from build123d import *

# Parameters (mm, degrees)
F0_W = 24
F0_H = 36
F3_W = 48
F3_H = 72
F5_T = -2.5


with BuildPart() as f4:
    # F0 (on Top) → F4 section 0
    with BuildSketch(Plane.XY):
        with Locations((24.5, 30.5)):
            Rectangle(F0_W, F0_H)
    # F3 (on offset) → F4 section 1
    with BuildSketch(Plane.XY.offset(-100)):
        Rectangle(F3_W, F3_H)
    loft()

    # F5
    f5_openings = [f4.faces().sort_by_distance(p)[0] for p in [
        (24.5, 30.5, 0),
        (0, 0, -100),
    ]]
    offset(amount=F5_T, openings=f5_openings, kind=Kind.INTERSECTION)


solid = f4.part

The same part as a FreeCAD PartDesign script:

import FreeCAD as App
import Part
import Sketcher
from FreeCAD import Vector
Q = App.Units.Quantity


def faces_at(feature, points):
    """Names of the faces that lie closest to the given points."""
    faces = feature.Shape.Faces
    near = lambda p: min(range(len(faces)), key=lambda i: faces[i].distToShape(Part.Vertex(*p))[0])
    return sorted({f"Face{near(p) + 1}" for p in points})


def add_polygon(sketch, points):
    """Adds a closed chain of lines whose ends are joined by coincident constraints."""
    first, n = sketch.GeometryCount, len(points)
    for a, b in zip(points, points[1:] + points[:1]):
        sketch.addGeometry(Part.LineSegment(App.Vector(*a, 0), App.Vector(*b, 0)), False)
    for i in range(n):
        sketch.addConstraint(Sketcher.Constraint("Coincident", first + i, 2, first + (i + 1) % n, 1))

doc = App.newDocument("Part")
params = doc.addObject("Spreadsheet::Sheet", "Params")
for row, (alias, value) in enumerate([
    ("sketch1_width", "24 mm"),
    ("sketch1_height", "36 mm"),
    ("sketch2_width", "48 mm"),
    ("sketch2_height", "72 mm"),
    ("thickness_wall", "2.5 mm"),
], start=1):
    params.set(f"A{row}", alias)
    params.set(f"B{row}", "=" + value)
    params.setAlias(f"B{row}", alias)

body = doc.addObject("PartDesign::Body", "Body")

# Sketch on XY plane
sketch1 = body.newObject("Sketcher::SketchObject", "Sketch")
sketch1.AttachmentSupport = (doc.getObject("XY_Plane"), [""])
sketch1.MapMode = "FlatFace"
add_polygon(sketch1, [(12, 48), (12, 12), (36, 12), (36, 48)])  # lines 0-3
sketch1.addConstraint([
    Sketcher.Constraint("Vertical", 0),
    Sketcher.Constraint("Horizontal", 1),
    Sketcher.Constraint("Vertical", 2),
    Sketcher.Constraint("Horizontal", 3),
    Sketcher.Constraint("DistanceX", 1, 1, 1, 2, Q("24 mm")),
    Sketcher.Constraint("DistanceY", 0, 2, 0, 1, Q("36 mm")),
    Sketcher.Constraint("DistanceX", -1, 1, 0, 2, Q("12.5 mm")),
    Sketcher.Constraint("DistanceY", -1, 1, 0, 2, Q("12.5 mm")),
])
sketch1.setExpression("Constraints[8]", "Params.sketch1_width")
sketch1.setExpression("Constraints[9]", "Params.sketch1_height")

# Sketch on XY plane
sketch2 = body.newObject("Sketcher::SketchObject", "Sketch001")
sketch2.AttachmentSupport = (doc.getObject("XY_Plane"), [""])
sketch2.MapMode = "FlatFace"
sketch2.AttachmentOffset = App.Placement(Vector(0, 0, -100), App.Rotation())
add_polygon(sketch2, [(-24, 36), (-24, -36), (24, -36), (24, 36)])  # lines 0-3
sketch2.addConstraint([
    Sketcher.Constraint("Vertical", 0),
    Sketcher.Constraint("Horizontal", 1),
    Sketcher.Constraint("Vertical", 2),
    Sketcher.Constraint("Horizontal", 3),
    Sketcher.Constraint("Symmetric", 0, 2, 2, 2, -1, 1),
    Sketcher.Constraint("DistanceX", 1, 1, 1, 2, Q("48 mm")),
    Sketcher.Constraint("DistanceY", 0, 2, 0, 1, Q("72 mm")),
])
sketch2.setExpression("Constraints[9]", "Params.sketch2_width")
sketch2.setExpression("Constraints[10]", "Params.sketch2_height")

additiveloft = body.newObject("PartDesign::AdditiveLoft", "AdditiveLoft")
additiveloft.Profile = sketch1
additiveloft.Sections = [sketch2]
doc.recompute()

thickness = body.newObject("PartDesign::Thickness", "Thickness")
thickness.Base = (additiveloft, faces_at(additiveloft, [(24.5, 30.5, 0), (0, 0, -100)]))
thickness.setExpression("Value", "Params.thickness_wall")
thickness.Reversed = True
thickness.Join = "Intersection"

doc.recompute()
